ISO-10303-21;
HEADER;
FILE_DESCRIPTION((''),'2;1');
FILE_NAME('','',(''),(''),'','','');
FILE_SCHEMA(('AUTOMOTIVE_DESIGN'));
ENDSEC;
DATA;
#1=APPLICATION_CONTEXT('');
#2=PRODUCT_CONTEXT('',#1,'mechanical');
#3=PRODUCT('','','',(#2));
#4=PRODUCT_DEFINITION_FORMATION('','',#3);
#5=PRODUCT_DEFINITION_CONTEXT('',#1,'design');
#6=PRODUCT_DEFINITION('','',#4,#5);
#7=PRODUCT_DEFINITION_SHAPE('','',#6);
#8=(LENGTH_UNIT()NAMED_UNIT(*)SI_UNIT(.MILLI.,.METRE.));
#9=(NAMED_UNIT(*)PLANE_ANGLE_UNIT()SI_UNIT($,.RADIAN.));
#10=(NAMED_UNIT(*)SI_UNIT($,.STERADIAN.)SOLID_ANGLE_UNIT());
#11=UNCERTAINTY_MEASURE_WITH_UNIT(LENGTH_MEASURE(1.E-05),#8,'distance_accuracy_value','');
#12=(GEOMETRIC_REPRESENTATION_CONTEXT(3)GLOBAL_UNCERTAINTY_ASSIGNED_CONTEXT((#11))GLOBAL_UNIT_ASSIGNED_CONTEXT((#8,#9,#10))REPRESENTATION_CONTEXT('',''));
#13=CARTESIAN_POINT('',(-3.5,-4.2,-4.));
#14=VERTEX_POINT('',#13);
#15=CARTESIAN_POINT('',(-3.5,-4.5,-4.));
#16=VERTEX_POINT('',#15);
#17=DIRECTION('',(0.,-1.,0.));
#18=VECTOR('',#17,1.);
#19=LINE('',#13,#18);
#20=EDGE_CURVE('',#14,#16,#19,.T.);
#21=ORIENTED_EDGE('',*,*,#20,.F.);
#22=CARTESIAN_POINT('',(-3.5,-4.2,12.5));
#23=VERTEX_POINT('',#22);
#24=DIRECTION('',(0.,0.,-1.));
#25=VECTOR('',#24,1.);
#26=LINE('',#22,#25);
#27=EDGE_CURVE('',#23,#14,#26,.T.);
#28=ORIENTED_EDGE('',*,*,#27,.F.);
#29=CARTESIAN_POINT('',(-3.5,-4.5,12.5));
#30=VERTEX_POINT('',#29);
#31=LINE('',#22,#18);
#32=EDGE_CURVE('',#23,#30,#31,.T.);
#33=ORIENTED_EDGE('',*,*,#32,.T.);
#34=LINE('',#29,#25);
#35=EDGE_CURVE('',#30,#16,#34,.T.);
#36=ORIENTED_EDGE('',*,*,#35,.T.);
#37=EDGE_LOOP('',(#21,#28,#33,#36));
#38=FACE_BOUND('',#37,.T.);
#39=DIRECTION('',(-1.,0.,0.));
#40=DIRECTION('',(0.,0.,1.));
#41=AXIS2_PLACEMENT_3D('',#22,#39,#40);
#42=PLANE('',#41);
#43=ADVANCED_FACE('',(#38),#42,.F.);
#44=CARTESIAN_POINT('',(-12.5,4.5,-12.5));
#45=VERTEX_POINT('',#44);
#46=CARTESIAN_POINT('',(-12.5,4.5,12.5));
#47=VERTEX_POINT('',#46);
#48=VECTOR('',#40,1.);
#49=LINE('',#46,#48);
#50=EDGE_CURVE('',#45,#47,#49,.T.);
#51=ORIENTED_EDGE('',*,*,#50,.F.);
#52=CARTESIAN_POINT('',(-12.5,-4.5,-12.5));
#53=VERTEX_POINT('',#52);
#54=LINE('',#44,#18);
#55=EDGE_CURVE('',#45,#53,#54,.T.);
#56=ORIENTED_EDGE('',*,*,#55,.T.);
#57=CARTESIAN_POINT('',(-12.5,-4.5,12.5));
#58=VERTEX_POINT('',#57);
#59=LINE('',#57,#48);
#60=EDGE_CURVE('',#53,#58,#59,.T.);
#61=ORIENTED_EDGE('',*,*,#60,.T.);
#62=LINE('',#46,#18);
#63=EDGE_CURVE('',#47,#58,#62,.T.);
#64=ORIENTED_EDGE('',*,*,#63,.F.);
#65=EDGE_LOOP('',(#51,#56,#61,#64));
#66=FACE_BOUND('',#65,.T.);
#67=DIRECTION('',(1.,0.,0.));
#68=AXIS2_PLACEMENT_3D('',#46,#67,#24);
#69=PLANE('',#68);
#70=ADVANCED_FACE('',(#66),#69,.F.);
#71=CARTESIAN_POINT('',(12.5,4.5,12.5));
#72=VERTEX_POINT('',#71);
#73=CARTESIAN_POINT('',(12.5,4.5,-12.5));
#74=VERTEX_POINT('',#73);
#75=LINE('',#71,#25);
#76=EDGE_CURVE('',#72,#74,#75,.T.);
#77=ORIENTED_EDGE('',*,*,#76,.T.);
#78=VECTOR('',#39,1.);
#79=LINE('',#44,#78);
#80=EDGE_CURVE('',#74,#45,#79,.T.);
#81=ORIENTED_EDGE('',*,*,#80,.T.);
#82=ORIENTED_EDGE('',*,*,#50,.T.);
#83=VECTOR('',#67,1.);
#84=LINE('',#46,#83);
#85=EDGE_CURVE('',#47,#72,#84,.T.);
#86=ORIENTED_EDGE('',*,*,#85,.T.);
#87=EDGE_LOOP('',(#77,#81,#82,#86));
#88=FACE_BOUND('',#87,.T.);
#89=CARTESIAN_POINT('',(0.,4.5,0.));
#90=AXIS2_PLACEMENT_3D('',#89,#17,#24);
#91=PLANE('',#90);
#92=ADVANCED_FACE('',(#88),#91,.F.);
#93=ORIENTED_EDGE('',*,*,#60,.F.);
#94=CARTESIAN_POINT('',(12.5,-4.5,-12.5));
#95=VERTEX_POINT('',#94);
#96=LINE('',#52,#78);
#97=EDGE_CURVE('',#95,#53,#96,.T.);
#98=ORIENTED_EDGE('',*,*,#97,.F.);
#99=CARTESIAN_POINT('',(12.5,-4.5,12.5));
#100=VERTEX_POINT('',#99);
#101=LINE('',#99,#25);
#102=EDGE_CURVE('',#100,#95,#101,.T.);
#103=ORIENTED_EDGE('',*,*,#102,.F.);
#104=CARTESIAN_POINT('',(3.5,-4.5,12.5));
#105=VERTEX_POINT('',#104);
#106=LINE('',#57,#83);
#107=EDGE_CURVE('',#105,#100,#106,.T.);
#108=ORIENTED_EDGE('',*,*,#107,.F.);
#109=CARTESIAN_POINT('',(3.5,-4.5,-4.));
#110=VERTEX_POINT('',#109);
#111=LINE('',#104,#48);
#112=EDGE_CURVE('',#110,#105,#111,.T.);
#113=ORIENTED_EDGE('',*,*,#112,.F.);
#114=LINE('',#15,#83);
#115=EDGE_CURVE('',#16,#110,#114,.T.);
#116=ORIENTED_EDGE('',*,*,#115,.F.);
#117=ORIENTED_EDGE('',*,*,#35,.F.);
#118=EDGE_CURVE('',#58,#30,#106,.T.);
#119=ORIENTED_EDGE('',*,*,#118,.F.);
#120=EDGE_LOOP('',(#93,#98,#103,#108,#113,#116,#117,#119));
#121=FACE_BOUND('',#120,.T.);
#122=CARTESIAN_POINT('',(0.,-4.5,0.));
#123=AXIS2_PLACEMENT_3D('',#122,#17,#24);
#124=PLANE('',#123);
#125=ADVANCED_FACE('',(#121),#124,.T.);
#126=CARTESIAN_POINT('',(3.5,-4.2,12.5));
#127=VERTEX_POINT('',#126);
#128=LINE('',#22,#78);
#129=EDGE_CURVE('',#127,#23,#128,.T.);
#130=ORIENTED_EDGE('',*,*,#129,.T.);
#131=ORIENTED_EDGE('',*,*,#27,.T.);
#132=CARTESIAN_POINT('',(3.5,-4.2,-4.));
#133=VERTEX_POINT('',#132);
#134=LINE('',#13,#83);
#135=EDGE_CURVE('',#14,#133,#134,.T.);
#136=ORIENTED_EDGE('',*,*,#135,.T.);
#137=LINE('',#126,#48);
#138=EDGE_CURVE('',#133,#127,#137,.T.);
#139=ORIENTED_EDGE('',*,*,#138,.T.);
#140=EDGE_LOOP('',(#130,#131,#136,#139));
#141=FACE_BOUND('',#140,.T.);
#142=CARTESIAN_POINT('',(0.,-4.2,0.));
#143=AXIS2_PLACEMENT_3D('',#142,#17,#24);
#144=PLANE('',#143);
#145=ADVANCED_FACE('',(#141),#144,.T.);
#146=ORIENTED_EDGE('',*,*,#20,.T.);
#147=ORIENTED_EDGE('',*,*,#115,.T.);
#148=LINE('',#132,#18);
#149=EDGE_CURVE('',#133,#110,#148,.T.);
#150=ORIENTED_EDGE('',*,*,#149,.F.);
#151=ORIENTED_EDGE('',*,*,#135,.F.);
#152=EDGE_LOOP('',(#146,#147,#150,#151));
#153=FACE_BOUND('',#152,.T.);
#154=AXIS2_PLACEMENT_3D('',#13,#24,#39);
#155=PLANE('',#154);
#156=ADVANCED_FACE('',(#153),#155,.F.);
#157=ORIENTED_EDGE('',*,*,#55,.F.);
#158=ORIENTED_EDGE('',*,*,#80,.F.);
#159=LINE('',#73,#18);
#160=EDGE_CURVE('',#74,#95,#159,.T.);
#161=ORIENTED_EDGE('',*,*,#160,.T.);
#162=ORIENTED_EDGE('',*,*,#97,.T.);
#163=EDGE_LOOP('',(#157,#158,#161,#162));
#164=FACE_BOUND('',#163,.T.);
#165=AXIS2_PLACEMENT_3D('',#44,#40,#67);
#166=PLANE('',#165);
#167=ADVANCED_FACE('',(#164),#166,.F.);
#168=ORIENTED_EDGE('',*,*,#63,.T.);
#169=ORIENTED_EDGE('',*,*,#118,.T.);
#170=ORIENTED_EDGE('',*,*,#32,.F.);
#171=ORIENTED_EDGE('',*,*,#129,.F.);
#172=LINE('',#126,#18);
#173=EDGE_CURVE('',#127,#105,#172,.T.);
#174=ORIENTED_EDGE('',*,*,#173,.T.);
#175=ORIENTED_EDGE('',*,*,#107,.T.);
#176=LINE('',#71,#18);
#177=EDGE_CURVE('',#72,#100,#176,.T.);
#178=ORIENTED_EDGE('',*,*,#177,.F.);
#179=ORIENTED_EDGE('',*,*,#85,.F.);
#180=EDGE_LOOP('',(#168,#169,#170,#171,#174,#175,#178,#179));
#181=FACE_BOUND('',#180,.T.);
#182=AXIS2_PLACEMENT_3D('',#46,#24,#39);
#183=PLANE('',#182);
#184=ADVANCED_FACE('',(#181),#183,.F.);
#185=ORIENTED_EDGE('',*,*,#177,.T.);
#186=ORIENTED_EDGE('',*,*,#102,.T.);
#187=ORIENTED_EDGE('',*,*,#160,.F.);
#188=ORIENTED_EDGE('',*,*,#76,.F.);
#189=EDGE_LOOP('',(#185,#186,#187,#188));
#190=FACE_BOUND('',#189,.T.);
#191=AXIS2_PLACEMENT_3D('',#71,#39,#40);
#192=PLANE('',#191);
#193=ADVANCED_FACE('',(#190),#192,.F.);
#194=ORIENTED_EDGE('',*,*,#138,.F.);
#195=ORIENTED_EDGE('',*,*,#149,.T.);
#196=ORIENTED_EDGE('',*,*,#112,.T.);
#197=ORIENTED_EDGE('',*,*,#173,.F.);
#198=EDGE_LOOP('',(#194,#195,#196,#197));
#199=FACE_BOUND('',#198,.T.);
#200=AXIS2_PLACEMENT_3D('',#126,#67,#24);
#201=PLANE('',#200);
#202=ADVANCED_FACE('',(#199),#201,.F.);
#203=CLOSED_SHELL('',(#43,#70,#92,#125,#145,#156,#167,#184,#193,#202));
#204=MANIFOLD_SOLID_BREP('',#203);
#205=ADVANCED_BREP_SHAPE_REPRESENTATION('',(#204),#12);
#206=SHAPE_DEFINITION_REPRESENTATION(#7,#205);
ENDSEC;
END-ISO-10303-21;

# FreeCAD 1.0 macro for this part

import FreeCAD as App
import Part
import Sketcher
Q = App.Units.Quantity

doc = App.newDocument("Part")
body = doc.addObject("PartDesign::Body", "Body")

# Sketch on XZ plane
sketch1 = doc.addObject("Sketcher::SketchObject", "Sketch")
body.addObject(sketch1)
sketch1.AttachmentSupport = (doc.XZ_Plane, [""])
sketch1.MapMode = "FlatFace"
sketch1.addGeometry(Part.LineSegment(App.Vector(-12, -12, 0), App.Vector(-12, 12, 0)), False)
sketch1.addGeometry(Part.LineSegment(App.Vector(-12, 12, 0), App.Vector(12, 12, 0)), False)
sketch1.addGeometry(Part.LineSegment(App.Vector(12, 12, 0), App.Vector(12, -12, 0)), False)
sketch1.addGeometry(Part.LineSegment(App.Vector(12, -12, 0), App.Vector(-12, -12, 0)), False)
sketch1.addConstraint(Sketcher.Constraint("Coincident", 0, 2, 1, 1))
sketch1.addConstraint(Sketcher.Constraint("Coincident", 1, 2, 2, 1))
sketch1.addConstraint(Sketcher.Constraint("Coincident", 2, 2, 3, 1))
sketch1.addConstraint(Sketcher.Constraint("Coincident", 3, 2, 0, 1))
sketch1.addConstraint(Sketcher.Constraint("Vertical", 0))
sketch1.addConstraint(Sketcher.Constraint("Horizontal", 1))
sketch1.addConstraint(Sketcher.Constraint("Vertical", 2))
sketch1.addConstraint(Sketcher.Constraint("Horizontal", 3))
sketch1.addConstraint(Sketcher.Constraint("Symmetric", 0, 2, 2, 2, -1, 1))
sketch1.addConstraint(Sketcher.Constraint("Equal", 3, 0))
sketch1.addConstraint(Sketcher.Constraint("DistanceX", 1, 1, 1, 2, Q("25 mm")))
pad1 = doc.addObject("PartDesign::Pad", "Pad")
body.addObject(pad1)
pad1.Profile = sketch1
pad1.Length = 9
pad1.Midplane = True

# Sketch on XZ plane
sketch2 = doc.addObject("Sketcher::SketchObject", "Sketch001")
body.addObject(sketch2)
sketch2.AttachmentSupport = (doc.XZ_Plane, [""])
sketch2.MapMode = "FlatFace"
sketch2.AttachmentOffset = App.Placement(App.Vector(0, 0, 4.5), App.Rotation())
sketch2.addGeometry(Part.LineSegment(App.Vector(-4, 12, 0), App.Vector(-4, -4, 0)), False)
sketch2.addGeometry(Part.LineSegment(App.Vector(-4, -4, 0), App.Vector(4, -4, 0)), False)
sketch2.addGeometry(Part.LineSegment(App.Vector(4, -4, 0), App.Vector(4, 12, 0)), False)
sketch2.addGeometry(Part.LineSegment(App.Vector(4, 12, 0), App.Vector(-4, 12, 0)), False)
sketch2.addConstraint(Sketcher.Constraint("Coincident", 0, 2, 1, 1))
sketch2.addConstraint(Sketcher.Constraint("Coincident", 1, 2, 2, 1))
sketch2.addConstraint(Sketcher.Constraint("Coincident", 2, 2, 3, 1))
sketch2.addConstraint(Sketcher.Constraint("Coincident", 3, 2, 0, 1))
sketch2.addConstraint(Sketcher.Constraint("Vertical", 0))
sketch2.addConstraint(Sketcher.Constraint("Horizontal", 1))
sketch2.addConstraint(Sketcher.Constraint("Vertical", 2))
sketch2.addConstraint(Sketcher.Constraint("Horizontal", 3))
sketch2.addConstraint(Sketcher.Constraint("DistanceX", 1, 1, 1, 2, Q("7 mm")))
sketch2.addConstraint(Sketcher.Constraint("DistanceY", 0, 2, 0, 1, Q("16.5 mm")))
sketch2.addConstraint(Sketcher.Constraint("DistanceY", 0, 2, -1, 1, Q("4 mm")))
sketch2.addConstraint(Sketcher.Constraint("DistanceX", 0, 2, -1, 1, Q("3.5 mm")))
pocket1 = doc.addObject("PartDesign::Pocket", "Pocket")
body.addObject(pocket1)
pocket1.Profile = sketch2
pocket1.Length = 0.3

doc.recompute()
